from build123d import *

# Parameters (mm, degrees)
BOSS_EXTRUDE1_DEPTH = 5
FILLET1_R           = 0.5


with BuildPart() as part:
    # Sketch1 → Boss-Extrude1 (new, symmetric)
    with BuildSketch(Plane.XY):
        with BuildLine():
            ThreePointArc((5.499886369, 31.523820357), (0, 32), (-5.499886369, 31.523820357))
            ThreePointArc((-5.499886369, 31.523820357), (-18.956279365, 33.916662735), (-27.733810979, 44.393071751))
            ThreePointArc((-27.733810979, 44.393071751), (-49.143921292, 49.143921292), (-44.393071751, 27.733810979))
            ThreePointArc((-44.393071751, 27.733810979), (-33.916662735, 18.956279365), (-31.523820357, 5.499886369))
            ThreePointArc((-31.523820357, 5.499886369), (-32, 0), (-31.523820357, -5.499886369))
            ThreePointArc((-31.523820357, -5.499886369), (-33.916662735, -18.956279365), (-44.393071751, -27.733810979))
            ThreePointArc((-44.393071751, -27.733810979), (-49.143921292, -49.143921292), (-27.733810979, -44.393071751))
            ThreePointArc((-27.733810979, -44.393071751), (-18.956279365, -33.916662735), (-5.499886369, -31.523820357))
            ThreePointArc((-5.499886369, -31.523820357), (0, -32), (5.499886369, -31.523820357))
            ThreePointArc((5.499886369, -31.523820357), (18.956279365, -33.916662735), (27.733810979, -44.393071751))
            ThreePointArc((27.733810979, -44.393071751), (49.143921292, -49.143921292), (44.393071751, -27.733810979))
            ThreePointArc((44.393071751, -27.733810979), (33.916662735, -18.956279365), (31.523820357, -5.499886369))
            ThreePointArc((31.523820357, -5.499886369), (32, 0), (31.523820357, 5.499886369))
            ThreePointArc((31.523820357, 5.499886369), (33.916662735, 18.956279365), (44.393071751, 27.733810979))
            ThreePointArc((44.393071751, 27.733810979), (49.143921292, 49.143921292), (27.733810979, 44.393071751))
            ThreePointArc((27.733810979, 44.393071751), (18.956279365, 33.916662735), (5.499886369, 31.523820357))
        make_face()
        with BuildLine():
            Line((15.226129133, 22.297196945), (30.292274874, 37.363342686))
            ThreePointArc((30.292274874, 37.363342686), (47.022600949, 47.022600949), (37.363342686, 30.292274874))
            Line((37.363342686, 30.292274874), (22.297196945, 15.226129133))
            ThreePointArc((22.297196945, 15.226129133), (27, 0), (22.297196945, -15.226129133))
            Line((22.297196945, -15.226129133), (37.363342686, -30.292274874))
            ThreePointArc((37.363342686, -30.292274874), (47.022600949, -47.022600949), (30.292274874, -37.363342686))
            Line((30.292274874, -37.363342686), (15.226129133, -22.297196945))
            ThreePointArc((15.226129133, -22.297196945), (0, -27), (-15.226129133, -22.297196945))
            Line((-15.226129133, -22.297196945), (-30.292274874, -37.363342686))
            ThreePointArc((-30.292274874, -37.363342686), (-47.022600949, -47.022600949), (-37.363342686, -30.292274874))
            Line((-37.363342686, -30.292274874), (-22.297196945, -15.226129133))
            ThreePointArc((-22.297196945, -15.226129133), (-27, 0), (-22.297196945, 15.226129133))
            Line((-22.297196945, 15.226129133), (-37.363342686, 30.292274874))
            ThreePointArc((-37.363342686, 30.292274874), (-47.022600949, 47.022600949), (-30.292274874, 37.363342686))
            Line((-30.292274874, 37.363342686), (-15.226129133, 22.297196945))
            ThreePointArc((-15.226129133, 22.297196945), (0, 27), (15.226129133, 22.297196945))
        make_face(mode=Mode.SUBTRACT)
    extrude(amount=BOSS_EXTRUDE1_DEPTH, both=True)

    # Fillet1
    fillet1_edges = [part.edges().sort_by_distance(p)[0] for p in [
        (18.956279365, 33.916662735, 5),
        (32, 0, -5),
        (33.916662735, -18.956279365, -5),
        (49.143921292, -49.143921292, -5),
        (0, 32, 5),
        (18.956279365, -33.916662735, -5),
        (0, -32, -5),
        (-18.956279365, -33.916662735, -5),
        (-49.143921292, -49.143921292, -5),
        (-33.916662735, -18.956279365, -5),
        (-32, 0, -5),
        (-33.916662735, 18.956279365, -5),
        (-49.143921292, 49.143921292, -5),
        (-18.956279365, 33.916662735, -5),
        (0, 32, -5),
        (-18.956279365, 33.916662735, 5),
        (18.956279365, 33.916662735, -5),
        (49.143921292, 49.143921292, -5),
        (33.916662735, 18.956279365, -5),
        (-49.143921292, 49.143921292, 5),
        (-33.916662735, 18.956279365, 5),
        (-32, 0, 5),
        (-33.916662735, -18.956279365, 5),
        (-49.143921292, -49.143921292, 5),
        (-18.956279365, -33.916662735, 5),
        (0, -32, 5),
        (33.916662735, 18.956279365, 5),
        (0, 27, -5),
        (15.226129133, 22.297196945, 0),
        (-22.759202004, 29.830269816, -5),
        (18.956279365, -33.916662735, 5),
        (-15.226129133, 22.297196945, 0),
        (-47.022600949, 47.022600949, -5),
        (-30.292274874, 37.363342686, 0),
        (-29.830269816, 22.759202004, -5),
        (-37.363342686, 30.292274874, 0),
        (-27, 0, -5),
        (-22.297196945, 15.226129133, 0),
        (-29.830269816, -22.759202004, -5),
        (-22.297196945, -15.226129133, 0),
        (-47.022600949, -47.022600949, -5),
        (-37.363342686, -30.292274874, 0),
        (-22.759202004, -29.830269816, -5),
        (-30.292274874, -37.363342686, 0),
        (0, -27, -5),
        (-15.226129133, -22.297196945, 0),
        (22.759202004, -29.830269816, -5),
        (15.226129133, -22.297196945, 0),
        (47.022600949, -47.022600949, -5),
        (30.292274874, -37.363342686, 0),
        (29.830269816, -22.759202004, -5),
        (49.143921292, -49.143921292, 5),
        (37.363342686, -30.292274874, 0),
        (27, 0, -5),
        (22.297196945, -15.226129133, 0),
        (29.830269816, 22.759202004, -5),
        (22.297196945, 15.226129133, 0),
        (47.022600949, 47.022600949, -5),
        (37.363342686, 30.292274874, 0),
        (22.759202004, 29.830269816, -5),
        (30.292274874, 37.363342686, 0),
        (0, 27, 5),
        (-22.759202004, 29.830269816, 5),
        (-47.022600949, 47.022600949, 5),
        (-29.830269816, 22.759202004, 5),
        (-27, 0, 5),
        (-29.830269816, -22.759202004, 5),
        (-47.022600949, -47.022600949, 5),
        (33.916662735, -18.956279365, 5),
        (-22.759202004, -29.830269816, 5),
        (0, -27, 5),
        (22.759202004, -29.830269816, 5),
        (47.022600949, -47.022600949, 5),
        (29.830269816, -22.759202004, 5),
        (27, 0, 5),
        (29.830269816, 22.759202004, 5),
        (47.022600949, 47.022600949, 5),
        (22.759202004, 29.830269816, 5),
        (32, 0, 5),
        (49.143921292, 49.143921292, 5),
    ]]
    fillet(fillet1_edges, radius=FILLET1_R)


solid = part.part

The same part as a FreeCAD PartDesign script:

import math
import FreeCAD as App
import Part
import Sketcher

doc = App.newDocument("Part")
body = doc.addObject("PartDesign::Body", "Body")

sketch1 = body.newObject("Sketcher::SketchObject", "Sketch")
sketch1.AttachmentSupport = (doc.getObject("XY_Plane"), [""])
sketch1.MapMode = "FlatFace"
sketch1.addGeometry([
    Part.ArcOfCircle(Part.Circle(App.Vector(0, 0, 0), App.Vector(0, 0, 1), 32), math.radians(80.1), math.radians(99.9)),
    Part.ArcOfCircle(Part.Circle(App.Vector(-9, 51, 0), App.Vector(0, 0, 1), 20), math.radians(-160), math.radians(-80)),
    Part.ArcOfCircle(Part.Circle(App.Vector(-40, 40, 0), App.Vector(0, 0, 1), 13), math.radians(20), math.radians(250)),
    Part.ArcOfCircle(Part.Circle(App.Vector(-51, 9, 0), App.Vector(0, 0, 1), 20), math.radians(-10), math.radians(70)),
    Part.ArcOfCircle(Part.Circle(App.Vector(0, 0, 0), App.Vector(0, 0, 1), 32), math.radians(170.1), math.radians(189.9)),
    Part.ArcOfCircle(Part.Circle(App.Vector(-51, -9, 0), App.Vector(0, 0, 1), 20), math.radians(-70), math.radians(10)),
    Part.ArcOfCircle(Part.Circle(App.Vector(-40, -40, 0), App.Vector(0, 0, 1), 13), math.radians(110), math.radians(340)),
    Part.ArcOfCircle(Part.Circle(App.Vector(-9, -51, 0), App.Vector(0, 0, 1), 20), math.radians(80), math.radians(160)),
    Part.ArcOfCircle(Part.Circle(App.Vector(0, 0, 0), App.Vector(0, 0, 1), 32), math.radians(-99.9), math.radians(-80.1)),
    Part.ArcOfCircle(Part.Circle(App.Vector(9, -51, 0), App.Vector(0, 0, 1), 20), math.radians(20), math.radians(100)),
    Part.ArcOfCircle(Part.Circle(App.Vector(40, -40, 0), App.Vector(0, 0, 1), 13), math.radians(-160), math.radians(70)),
    Part.ArcOfCircle(Part.Circle(App.Vector(51, -9, 0), App.Vector(0, 0, 1), 20), math.radians(170), math.radians(250)),
    Part.ArcOfCircle(Part.Circle(App.Vector(0, 0, 0), App.Vector(0, 0, 1), 32), math.radians(-9.9), math.radians(9.9)),
    Part.ArcOfCircle(Part.Circle(App.Vector(51, 9, 0), App.Vector(0, 0, 1), 20), math.radians(110), math.radians(190)),
    Part.ArcOfCircle(Part.Circle(App.Vector(40, 40, 0), App.Vector(0, 0, 1), 13), math.radians(-70), math.radians(160)),
    Part.ArcOfCircle(Part.Circle(App.Vector(9, 51, 0), App.Vector(0, 0, 1), 20), math.radians(-100), math.radians(-20)),
    Part.ArcOfCircle(Part.Circle(App.Vector(0, 0, 0), App.Vector(0, 0, 1), 27), math.radians(56), math.radians(124)),
    Part.LineSegment(App.Vector(15, 22, 0), App.Vector(30, 37, 0)),
    Part.ArcOfCircle(Part.Circle(App.Vector(40, 40, 0), App.Vector(0, 0, 1), 10), math.radians(-105), math.radians(195)),
    Part.LineSegment(App.Vector(37, 30, 0), App.Vector(22, 15, 0)),
    Part.ArcOfCircle(Part.Circle(App.Vector(0, 0, 0), App.Vector(0, 0, 1), 27), math.radians(-34), math.radians(34)),
    Part.LineSegment(App.Vector(22, -15, 0), App.Vector(37, -30, 0)),
    Part.ArcOfCircle(Part.Circle(App.Vector(40, -40, 0), App.Vector(0, 0, 1), 10), math.radians(165), math.radians(465)),
    Part.LineSegment(App.Vector(30, -37, 0), App.Vector(15, -22, 0)),
    Part.ArcOfCircle(Part.Circle(App.Vector(0, 0, 0), App.Vector(0, 0, 1), 27), math.radians(-124), math.radians(-56)),
    Part.LineSegment(App.Vector(-15, -22, 0), App.Vector(-30, -37, 0)),
    Part.ArcOfCircle(Part.Circle(App.Vector(-40, -40, 0), App.Vector(0, 0, 1), 10), math.radians(75), math.radians(375)),
    Part.LineSegment(App.Vector(-37, -30, 0), App.Vector(-22, -15, 0)),
    Part.ArcOfCircle(Part.Circle(App.Vector(0, 0, 0), App.Vector(0, 0, 1), 27), math.radians(146), math.radians(214)),
    Part.LineSegment(App.Vector(-22, 15, 0), App.Vector(-37, 30, 0)),
    Part.ArcOfCircle(Part.Circle(App.Vector(-40, 40, 0), App.Vector(0, 0, 1), 10), math.radians(-15), math.radians(285)),
    Part.LineSegment(App.Vector(-30, 37, 0), App.Vector(-15, 22, 0)),
], False)
sketch1.addConstraint([
    Sketcher.Constraint("Tangent", 0, 2, 1, 2),
    Sketcher.Constraint("Tangent", 1, 1, 2, 1),
    Sketcher.Constraint("Tangent", 2, 2, 3, 2),
    Sketcher.Constraint("Tangent", 3, 1, 4, 1),
    Sketcher.Constraint("Tangent", 4, 2, 5, 2),
    Sketcher.Constraint("Tangent", 5, 1, 6, 1),
    Sketcher.Constraint("Tangent", 6, 2, 7, 2),
    Sketcher.Constraint("Tangent", 7, 1, 8, 1),
    Sketcher.Constraint("Tangent", 8, 2, 9, 2),
    Sketcher.Constraint("Tangent", 9, 1, 10, 1),
    Sketcher.Constraint("Tangent", 10, 2, 11, 2),
    Sketcher.Constraint("Tangent", 11, 1, 12, 1),
    Sketcher.Constraint("Tangent", 12, 2, 13, 2),
    Sketcher.Constraint("Tangent", 13, 1, 14, 1),
    Sketcher.Constraint("Tangent", 14, 2, 15, 2),
    Sketcher.Constraint("Tangent", 15, 1, 0, 1),
    Sketcher.Constraint("Coincident", 16, 1, 17, 1),
    Sketcher.Constraint("Coincident", 17, 2, 18, 2),
    Sketcher.Constraint("Coincident", 18, 1, 19, 1),
    Sketcher.Constraint("Coincident", 19, 2, 20, 2),
    Sketcher.Constraint("Coincident", 20, 1, 21, 1),
    Sketcher.Constraint("Coincident", 21, 2, 22, 2),
    Sketcher.Constraint("Coincident", 22, 1, 23, 1),
    Sketcher.Constraint("Coincident", 23, 2, 24, 2),
    Sketcher.Constraint("Coincident", 24, 1, 25, 1),
    Sketcher.Constraint("Coincident", 25, 2, 26, 2),
    Sketcher.Constraint("Coincident", 26, 1, 27, 1),
    Sketcher.Constraint("Coincident", 27, 2, 28, 2),
    Sketcher.Constraint("Coincident", 28, 1, 29, 1),
    Sketcher.Constraint("Coincident", 29, 2, 30, 2),
    Sketcher.Constraint("Coincident", 30, 1, 31, 1),
    Sketcher.Constraint("Coincident", 31, 2, 16, 2),
    Sketcher.Constraint("Coincident", 0, 3, -1, 1),
    Sketcher.Constraint("Coincident", 4, 3, -1, 1),
    Sketcher.Constraint("Coincident", 8, 3, -1, 1),
    Sketcher.Constraint("Coincident", 12, 3, -1, 1),
    Sketcher.Constraint("Coincident", 16, 3, -1, 1),
    Sketcher.Constraint("Coincident", 20, 3, -1, 1),
    Sketcher.Constraint("Coincident", 24, 3, -1, 1),
    Sketcher.Constraint("Coincident", 28, 3, -1, 1),
    Sketcher.Constraint("Coincident", 18, 3, 14, 3),
    Sketcher.Constraint("Coincident", 22, 3, 10, 3),
    Sketcher.Constraint("Coincident", 26, 3, 6, 3),
    Sketcher.Constraint("Coincident", 30, 3, 2, 3),
    Sketcher.Constraint("Equal", 1, 3),
    Sketcher.Constraint("Equal", 0, 4),
    Sketcher.Constraint("Equal", 3, 5),
    Sketcher.Constraint("Equal", 2, 6),
    Sketcher.Constraint("Equal", 5, 7),
    Sketcher.Constraint("Equal", 4, 8),
    Sketcher.Constraint("Equal", 7, 9),
    Sketcher.Constraint("Equal", 6, 10),
    Sketcher.Constraint("Equal", 9, 11),
    Sketcher.Constraint("Equal", 8, 12),
    Sketcher.Constraint("Equal", 11, 13),
    Sketcher.Constraint("Equal", 10, 14),
    Sketcher.Constraint("Equal", 13, 15),
    Sketcher.Constraint("Equal", 16, 20),
    Sketcher.Constraint("Equal", 18, 22),
    Sketcher.Constraint("Equal", 20, 24),
    Sketcher.Constraint("Equal", 22, 26),
    Sketcher.Constraint("Equal", 24, 28),
    Sketcher.Constraint("Equal", 26, 30),
    Sketcher.Constraint("Symmetric", 2, 3, 10, 3, -1, 1),
    Sketcher.Constraint("Symmetric", 6, 3, 14, 3, -1, 1),
    Sketcher.Constraint("Symmetric", 6, 3, 10, 3, -2),
    Sketcher.Constraint("Parallel", 17, 19),
    Sketcher.Constraint("Perpendicular", 19, 21),
    Sketcher.Constraint("Parallel", 21, 23),
    Sketcher.Constraint("Perpendicular", 23, 25),
    Sketcher.Constraint("Parallel", 25, 27),
    Sketcher.Constraint("Perpendicular", 27, 29),
    Sketcher.Constraint("Parallel", 29, 31),
    Sketcher.Constraint("Horizontal", 23, 2, 24, 1),
    Sketcher.Constraint("Horizontal", 22, 1, 25, 2),
    Sketcher.Constraint("Horizontal", 21, 2, 26, 1),
    Sketcher.Constraint("Horizontal", 19, 2, 28, 1),
    Sketcher.Constraint("Horizontal", 17, 2, 30, 1),
    Sketcher.Constraint("Vertical", 19, 2, 20, 1),
    Sketcher.Constraint("Vertical", 17, 2, 22, 1),
    Sketcher.Constraint("Equal", 17, 19),
    Sketcher.Constraint("Radius", 0, 32.0),
    Sketcher.Constraint("Radius", 1, 20.0),
    Sketcher.Constraint("Radius", 2, 13.0),
    Sketcher.Constraint("Radius", 16, 27.0),
    Sketcher.Constraint("Radius", 18, 10.0),
    Sketcher.Constraint("DistanceX", 0, 2, 15, 3, 14.437202),
    Sketcher.Constraint("DistanceY", 5, 3, 3, 1, 14.437202),
    Sketcher.Constraint("DistanceX", -1, 1, 16, 1, 15.226129),
])
pad1 = body.newObject("PartDesign::Pad", "Pad")
pad1.Profile = sketch1
pad1.Length = 10
pad1.Midplane = True
doc.recompute()

fillet = body.newObject("PartDesign::Fillet", "Fillet")
fillet.Base = (pad1, ["Edge1"])
fillet.UseAllEdges = True
fillet.Radius = 0.5

doc.recompute()
